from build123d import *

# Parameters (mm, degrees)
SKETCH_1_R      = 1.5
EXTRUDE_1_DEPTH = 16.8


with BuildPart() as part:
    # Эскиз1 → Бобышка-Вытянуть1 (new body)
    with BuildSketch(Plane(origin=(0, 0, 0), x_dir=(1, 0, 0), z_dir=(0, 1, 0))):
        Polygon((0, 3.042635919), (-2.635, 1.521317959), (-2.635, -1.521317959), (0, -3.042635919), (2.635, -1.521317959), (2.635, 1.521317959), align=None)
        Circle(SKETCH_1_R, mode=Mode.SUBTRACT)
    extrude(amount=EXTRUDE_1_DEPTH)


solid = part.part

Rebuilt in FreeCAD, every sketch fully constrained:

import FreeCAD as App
import Part
import Sketcher

V = App.Vector
Q = App.Units.Quantity

doc = App.newDocument("Part")
body = doc.addObject("PartDesign::Body", "Body")

sketch1 = body.newObject("Sketcher::SketchObject", "Sketch")
sketch1.AttachmentSupport = (doc.getObject("XZ_Plane"), [""])
sketch1.MapMode = "FlatFace"
sketch1.addGeometry(Part.LineSegment(V(0, -3, 0), V(-2.6, -1.5, 0)), False)
sketch1.addGeometry(Part.LineSegment(V(-2.6, -1.5, 0), V(-2.6, 1.5, 0)), False)
sketch1.addGeometry(Part.LineSegment(V(-2.6, 1.5, 0), V(0, 3, 0)), False)
sketch1.addGeometry(Part.LineSegment(V(0, 3, 0), V(2.6, 1.5, 0)), False)
sketch1.addGeometry(Part.LineSegment(V(2.6, 1.5, 0), V(2.6, -1.5, 0)), False)
sketch1.addGeometry(Part.LineSegment(V(2.6, -1.5, 0), V(0, -3, 0)), False)
sketch1.addGeometry(Part.Circle(V(0, 0, 0), V(0, 0, 1), 1.5), False)
sketch1.addConstraint(Sketcher.Constraint("Coincident", 0, 2, 1, 1))
sketch1.addConstraint(Sketcher.Constraint("Coincident", 1, 2, 2, 1))
sketch1.addConstraint(Sketcher.Constraint("Coincident", 2, 2, 3, 1))
sketch1.addConstraint(Sketcher.Constraint("Coincident", 3, 2, 4, 1))
sketch1.addConstraint(Sketcher.Constraint("Coincident", 4, 2, 5, 1))
sketch1.addConstraint(Sketcher.Constraint("Coincident", 5, 2, 0, 1))
sketch1.addConstraint(Sketcher.Constraint("Vertical", 1))
sketch1.addConstraint(Sketcher.Constraint("Vertical", 4))
sketch1.addConstraint(Sketcher.Constraint("Coincident", 6, 3, -1, 1))
sketch1.addConstraint(Sketcher.Constraint("Symmetric", 0, 2, 3, 2, -1, 1))
sketch1.addConstraint(Sketcher.Constraint("Symmetric", 2, 2, 5, 2, -1, 1))
sketch1.addConstraint(Sketcher.Constraint("PointOnObject", 2, 2, -2))
sketch1.addConstraint(Sketcher.Constraint("Parallel", 2, 5))
sketch1.addConstraint(Sketcher.Constraint("Horizontal", 1, 2, 3, 2))
sketch1.addConstraint(Sketcher.Constraint("Diameter", 6, Q("3 mm")))
sketch1.addConstraint(Sketcher.Constraint("Angle", 0, Q("150 deg")))
sketch1.addConstraint(Sketcher.Constraint("DistanceX", 1, 2, 3, 2, Q("5.27 mm")))
sketch1.addConstraint(Sketcher.Constraint("DistanceY", 1, 1, 1, 2, Q("3.042636 mm")))
pad1 = body.newObject("PartDesign::Pad", "Pad")
pad1.Profile = sketch1
pad1.Length = 16.8
pad1.Reversed = True

doc.recompute()
